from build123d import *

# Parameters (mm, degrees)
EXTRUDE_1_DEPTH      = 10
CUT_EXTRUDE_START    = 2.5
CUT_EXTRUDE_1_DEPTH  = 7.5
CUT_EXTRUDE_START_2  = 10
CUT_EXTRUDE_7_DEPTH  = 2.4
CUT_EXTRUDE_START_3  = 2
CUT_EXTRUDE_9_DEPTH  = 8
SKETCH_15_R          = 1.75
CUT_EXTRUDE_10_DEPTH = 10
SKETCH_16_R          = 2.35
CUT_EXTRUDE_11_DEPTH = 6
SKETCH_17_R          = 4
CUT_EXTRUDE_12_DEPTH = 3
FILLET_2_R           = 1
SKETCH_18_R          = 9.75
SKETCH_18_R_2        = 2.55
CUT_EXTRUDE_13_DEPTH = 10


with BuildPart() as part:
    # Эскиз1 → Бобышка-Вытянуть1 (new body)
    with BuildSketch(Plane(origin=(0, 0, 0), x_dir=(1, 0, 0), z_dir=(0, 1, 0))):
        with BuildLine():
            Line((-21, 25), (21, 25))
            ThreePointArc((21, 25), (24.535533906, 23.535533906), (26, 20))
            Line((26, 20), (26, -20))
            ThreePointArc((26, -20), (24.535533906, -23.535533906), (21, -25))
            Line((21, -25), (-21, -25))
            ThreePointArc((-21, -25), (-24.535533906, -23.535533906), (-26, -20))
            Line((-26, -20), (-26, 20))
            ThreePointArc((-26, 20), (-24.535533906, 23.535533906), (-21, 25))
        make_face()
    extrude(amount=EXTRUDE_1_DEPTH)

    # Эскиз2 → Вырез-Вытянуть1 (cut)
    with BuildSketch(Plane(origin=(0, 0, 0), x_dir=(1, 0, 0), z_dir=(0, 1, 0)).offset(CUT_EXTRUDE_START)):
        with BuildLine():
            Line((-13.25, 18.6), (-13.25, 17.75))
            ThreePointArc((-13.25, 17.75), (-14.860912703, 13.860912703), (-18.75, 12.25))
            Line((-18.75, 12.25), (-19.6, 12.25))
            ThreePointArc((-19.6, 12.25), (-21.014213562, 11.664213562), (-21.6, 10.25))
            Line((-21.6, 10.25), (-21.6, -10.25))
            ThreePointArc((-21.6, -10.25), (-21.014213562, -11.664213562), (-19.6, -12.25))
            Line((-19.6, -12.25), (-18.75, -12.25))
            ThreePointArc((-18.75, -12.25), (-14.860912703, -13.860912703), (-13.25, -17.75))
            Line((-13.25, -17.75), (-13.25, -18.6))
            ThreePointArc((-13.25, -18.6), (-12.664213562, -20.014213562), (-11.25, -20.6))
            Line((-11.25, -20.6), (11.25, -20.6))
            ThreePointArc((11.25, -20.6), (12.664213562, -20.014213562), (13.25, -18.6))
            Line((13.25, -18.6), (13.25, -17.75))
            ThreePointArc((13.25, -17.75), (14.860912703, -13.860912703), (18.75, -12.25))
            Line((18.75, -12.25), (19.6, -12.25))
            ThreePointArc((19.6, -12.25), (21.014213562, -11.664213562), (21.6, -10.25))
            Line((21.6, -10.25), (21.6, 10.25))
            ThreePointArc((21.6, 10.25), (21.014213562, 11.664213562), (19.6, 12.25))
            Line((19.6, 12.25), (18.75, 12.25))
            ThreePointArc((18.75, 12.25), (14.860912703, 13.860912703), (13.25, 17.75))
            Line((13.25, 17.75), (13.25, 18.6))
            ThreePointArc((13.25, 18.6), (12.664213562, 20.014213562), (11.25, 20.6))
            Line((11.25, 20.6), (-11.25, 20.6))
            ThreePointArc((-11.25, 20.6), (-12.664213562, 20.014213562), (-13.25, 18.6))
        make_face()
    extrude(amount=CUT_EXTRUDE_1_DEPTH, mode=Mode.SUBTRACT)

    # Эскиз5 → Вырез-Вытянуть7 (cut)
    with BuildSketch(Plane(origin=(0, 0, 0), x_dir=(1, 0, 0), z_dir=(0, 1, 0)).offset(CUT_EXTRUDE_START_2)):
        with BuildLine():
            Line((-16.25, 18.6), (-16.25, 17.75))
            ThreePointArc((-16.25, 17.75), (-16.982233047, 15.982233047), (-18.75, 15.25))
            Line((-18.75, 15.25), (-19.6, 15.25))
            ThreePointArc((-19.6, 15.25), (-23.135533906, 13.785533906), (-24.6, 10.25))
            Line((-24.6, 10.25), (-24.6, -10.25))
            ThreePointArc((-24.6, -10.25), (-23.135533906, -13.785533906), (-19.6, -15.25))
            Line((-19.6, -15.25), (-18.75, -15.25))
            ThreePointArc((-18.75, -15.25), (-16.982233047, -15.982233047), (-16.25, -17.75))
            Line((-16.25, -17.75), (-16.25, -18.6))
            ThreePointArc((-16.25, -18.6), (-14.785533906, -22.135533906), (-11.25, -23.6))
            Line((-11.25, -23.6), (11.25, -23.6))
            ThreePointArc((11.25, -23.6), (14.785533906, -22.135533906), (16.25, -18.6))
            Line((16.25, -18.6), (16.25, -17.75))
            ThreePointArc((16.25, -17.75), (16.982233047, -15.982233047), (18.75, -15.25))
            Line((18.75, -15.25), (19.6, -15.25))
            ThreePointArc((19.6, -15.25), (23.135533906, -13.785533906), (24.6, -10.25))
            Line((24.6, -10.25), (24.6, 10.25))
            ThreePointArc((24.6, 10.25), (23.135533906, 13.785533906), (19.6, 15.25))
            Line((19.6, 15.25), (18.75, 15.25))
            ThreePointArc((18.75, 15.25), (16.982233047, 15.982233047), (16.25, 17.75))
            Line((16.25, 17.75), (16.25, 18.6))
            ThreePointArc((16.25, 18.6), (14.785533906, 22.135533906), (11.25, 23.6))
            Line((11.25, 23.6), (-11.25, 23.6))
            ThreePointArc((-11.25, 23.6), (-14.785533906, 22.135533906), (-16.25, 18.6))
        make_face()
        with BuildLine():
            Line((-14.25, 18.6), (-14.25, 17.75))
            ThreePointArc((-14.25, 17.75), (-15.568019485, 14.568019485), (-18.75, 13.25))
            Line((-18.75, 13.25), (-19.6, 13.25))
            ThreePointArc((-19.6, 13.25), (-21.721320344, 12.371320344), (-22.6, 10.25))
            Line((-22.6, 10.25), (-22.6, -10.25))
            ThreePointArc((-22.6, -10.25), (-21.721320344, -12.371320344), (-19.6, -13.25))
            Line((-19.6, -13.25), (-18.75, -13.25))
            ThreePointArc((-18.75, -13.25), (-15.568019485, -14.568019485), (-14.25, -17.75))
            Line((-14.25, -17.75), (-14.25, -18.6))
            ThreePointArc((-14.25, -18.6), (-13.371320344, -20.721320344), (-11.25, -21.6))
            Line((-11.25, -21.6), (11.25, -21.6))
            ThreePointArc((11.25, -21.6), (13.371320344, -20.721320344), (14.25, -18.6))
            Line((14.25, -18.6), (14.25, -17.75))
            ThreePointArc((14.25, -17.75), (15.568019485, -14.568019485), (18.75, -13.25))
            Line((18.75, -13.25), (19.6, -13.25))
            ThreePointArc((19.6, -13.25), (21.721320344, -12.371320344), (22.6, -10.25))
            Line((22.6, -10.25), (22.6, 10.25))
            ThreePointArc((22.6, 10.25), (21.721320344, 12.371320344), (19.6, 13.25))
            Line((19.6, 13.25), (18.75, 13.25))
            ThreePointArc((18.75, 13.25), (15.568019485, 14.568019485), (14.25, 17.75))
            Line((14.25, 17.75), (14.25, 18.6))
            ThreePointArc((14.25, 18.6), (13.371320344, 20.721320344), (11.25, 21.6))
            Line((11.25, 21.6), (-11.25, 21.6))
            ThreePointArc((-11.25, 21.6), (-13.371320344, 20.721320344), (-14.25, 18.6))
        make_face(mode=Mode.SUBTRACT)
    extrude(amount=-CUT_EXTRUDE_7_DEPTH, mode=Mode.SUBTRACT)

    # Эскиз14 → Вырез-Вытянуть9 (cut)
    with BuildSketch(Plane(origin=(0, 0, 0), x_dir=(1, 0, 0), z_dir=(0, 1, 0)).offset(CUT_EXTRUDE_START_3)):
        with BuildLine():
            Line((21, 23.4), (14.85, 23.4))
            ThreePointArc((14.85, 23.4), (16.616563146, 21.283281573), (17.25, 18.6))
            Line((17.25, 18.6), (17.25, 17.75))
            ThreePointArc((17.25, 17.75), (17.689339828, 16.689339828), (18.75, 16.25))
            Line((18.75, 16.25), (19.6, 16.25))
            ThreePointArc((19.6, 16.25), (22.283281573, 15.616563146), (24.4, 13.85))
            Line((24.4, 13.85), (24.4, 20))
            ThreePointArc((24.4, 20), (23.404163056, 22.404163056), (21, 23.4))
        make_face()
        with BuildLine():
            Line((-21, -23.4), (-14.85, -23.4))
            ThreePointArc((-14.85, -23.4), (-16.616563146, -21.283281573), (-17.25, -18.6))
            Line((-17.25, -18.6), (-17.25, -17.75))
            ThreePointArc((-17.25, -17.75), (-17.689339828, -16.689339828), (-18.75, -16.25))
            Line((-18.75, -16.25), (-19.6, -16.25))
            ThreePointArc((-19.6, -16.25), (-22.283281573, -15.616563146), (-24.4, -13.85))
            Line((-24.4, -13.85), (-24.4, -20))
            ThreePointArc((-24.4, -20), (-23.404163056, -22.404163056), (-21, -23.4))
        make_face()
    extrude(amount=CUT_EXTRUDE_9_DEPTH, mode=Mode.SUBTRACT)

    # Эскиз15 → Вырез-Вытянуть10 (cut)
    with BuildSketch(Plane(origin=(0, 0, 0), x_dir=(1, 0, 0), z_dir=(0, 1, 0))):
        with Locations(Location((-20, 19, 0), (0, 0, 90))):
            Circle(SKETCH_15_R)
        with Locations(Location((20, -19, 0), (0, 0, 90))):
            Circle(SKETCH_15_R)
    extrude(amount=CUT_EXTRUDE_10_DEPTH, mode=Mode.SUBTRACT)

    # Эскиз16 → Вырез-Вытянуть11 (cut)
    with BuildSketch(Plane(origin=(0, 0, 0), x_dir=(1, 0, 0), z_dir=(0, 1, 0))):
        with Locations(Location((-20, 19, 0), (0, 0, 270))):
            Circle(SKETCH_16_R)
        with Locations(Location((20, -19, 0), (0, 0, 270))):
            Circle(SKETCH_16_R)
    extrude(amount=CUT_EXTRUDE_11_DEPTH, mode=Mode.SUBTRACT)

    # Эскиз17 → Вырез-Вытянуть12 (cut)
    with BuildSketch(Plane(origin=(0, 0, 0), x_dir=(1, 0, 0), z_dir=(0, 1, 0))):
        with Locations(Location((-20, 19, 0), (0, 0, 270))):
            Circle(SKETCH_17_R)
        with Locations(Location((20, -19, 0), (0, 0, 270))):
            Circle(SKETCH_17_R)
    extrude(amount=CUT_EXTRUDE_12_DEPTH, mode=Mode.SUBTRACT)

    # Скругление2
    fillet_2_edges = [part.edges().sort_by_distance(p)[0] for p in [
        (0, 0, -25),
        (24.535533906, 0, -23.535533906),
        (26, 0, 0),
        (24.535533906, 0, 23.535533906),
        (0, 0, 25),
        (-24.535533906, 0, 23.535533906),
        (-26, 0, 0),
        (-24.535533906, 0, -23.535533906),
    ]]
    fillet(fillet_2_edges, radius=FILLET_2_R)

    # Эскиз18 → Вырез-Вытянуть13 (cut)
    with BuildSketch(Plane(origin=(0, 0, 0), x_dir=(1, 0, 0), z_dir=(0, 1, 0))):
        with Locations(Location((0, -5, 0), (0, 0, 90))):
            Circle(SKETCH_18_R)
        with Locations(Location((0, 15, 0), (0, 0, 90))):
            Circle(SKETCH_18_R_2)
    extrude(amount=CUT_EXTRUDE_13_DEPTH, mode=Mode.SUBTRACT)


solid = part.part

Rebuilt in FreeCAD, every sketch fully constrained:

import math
import FreeCAD as App
import Part
import Sketcher
Q = App.Units.Quantity


def edges_at(feature, points):
    """Names of the edges that pass closest to the given points."""
    edges = feature.Shape.Edges
    near = lambda p: min(range(len(edges)), key=lambda i: edges[i].distToShape(Part.Vertex(*p))[0])
    return sorted({f"Edge{near(p) + 1}" for p in points})

doc = App.newDocument("Part")
body = doc.addObject("PartDesign::Body", "Body")

# Sketch on XZ plane
sketch1 = doc.addObject("Sketcher::SketchObject", "Sketch")
body.addObject(sketch1)
sketch1.AttachmentSupport = (doc.XZ_Plane, [""])
sketch1.MapMode = "FlatFace"
sketch1.addGeometry([
    Part.LineSegment(App.Vector(21, -25, 0), App.Vector(-21, -25, 0)),  # 0
    Part.ArcOfCircle(Part.Circle(App.Vector(-21, -20, 0), App.Vector(0, 0, 1), 5), math.radians(180), math.radians(270)),  # 1
    Part.LineSegment(App.Vector(-26, -20, 0), App.Vector(-26, 20, 0)),  # 2
    Part.ArcOfCircle(Part.Circle(App.Vector(-21, 20, 0), App.Vector(0, 0, 1), 5), math.radians(90), math.radians(180)),  # 3
    Part.LineSegment(App.Vector(-21, 25, 0), App.Vector(21, 25, 0)),  # 4
    Part.ArcOfCircle(Part.Circle(App.Vector(21, 20, 0), App.Vector(0, 0, 1), 5), math.radians(0), math.radians(90)),  # 5
    Part.LineSegment(App.Vector(26, 20, 0), App.Vector(26, -20, 0)),  # 6
    Part.ArcOfCircle(Part.Circle(App.Vector(21, -20, 0), App.Vector(0, 0, 1), 5), math.radians(-90), math.radians(0)),  # 7
], False)
sketch1.addConstraint([
    Sketcher.Constraint("Tangent", 0, 2, 1, 2),
    Sketcher.Constraint("Tangent", 1, 1, 2, 1),
    Sketcher.Constraint("Tangent", 2, 2, 3, 2),
    Sketcher.Constraint("Tangent", 3, 1, 4, 1),
    Sketcher.Constraint("Tangent", 4, 2, 5, 2),
    Sketcher.Constraint("Tangent", 5, 1, 6, 1),
    Sketcher.Constraint("Tangent", 6, 2, 7, 2),
    Sketcher.Constraint("Tangent", 7, 1, 0, 1),
    Sketcher.Constraint("Horizontal", 0),
    Sketcher.Constraint("Vertical", 2),
    Sketcher.Constraint("Horizontal", 4),
    Sketcher.Constraint("Vertical", 6),
    Sketcher.Constraint("Equal", 1, 3),
    Sketcher.Constraint("Equal", 3, 5),
    Sketcher.Constraint("Equal", 5, 7),
    Sketcher.Constraint("Symmetric", 1, 3, 5, 3, -1, 1),
    Sketcher.Constraint("Radius", 1, Q("5 mm")),
    Sketcher.Constraint("DistanceX", 0, 2, 0, 1, Q("42 mm")),
    Sketcher.Constraint("DistanceY", 2, 1, 2, 2, Q("40 mm")),
])
pad1 = doc.addObject("PartDesign::Pad", "Pad")
body.addObject(pad1)
pad1.Profile = sketch1
pad1.Length = 10
pad1.Reversed = True

# Sketch on XZ plane
sketch2 = doc.addObject("Sketcher::SketchObject", "Sketch001")
body.addObject(sketch2)
sketch2.AttachmentSupport = (doc.XZ_Plane, [""])
sketch2.MapMode = "FlatFace"
sketch2.AttachmentOffset = App.Placement(App.Vector(0, 0, -2.5), App.Rotation())
sketch2.addGeometry([
    Part.LineSegment(App.Vector(-13.2, -18.6, 0), App.Vector(-13.2, -17.8, 0)),  # 0
    Part.ArcOfCircle(Part.Circle(App.Vector(-18.7, -17.7, 0), App.Vector(0, 0, 1), 5.5), math.radians(0), math.radians(90)),  # 1
    Part.LineSegment(App.Vector(-18.8, -12.2, 0), App.Vector(-19.6, -12.2, 0)),  # 2
    Part.ArcOfCircle(Part.Circle(App.Vector(-19.6, -10.2, 0), App.Vector(0, 0, 1), 2), math.radians(-180), math.radians(-90)),  # 3
    Part.LineSegment(App.Vector(-21.6, -10.2, 0), App.Vector(-21.6, 10.2, 0)),  # 4
    Part.ArcOfCircle(Part.Circle(App.Vector(-19.6, 10.2, 0), App.Vector(0, 0, 1), 2), math.radians(90), math.radians(180)),  # 5
    Part.LineSegment(App.Vector(-19.6, 12.2, 0), App.Vector(-18.8, 12.2, 0)),  # 6
    Part.ArcOfCircle(Part.Circle(App.Vector(-18.7, 17.7, 0), App.Vector(0, 0, 1), 5.5), math.radians(-90), math.radians(0)),  # 7
    Part.LineSegment(App.Vector(-13.2, 17.8, 0), App.Vector(-13.2, 18.6, 0)),  # 8
    Part.ArcOfCircle(Part.Circle(App.Vector(-11.2, 18.6, 0), App.Vector(0, 0, 1), 2), math.radians(90), math.radians(180)),  # 9
    Part.LineSegment(App.Vector(-11.2, 20.6, 0), App.Vector(11.2, 20.6, 0)),  # 10
    Part.ArcOfCircle(Part.Circle(App.Vector(11.2, 18.6, 0), App.Vector(0, 0, 1), 2), math.radians(0), math.radians(90)),  # 11
    Part.LineSegment(App.Vector(13.2, 18.6, 0), App.Vector(13.2, 17.8, 0)),  # 12
    Part.ArcOfCircle(Part.Circle(App.Vector(18.7, 17.7, 0), App.Vector(0, 0, 1), 5.5), math.radians(180), math.radians(270)),  # 13
    Part.LineSegment(App.Vector(18.8, 12.2, 0), App.Vector(19.6, 12.2, 0)),  # 14
    Part.ArcOfCircle(Part.Circle(App.Vector(19.6, 10.2, 0), App.Vector(0, 0, 1), 2), math.radians(0), math.radians(90)),  # 15
    Part.LineSegment(App.Vector(21.6, 10.2, 0), App.Vector(21.6, -10.2, 0)),  # 16
    Part.ArcOfCircle(Part.Circle(App.Vector(19.6, -10.2, 0), App.Vector(0, 0, 1), 2), math.radians(-90), math.radians(0)),  # 17
    Part.LineSegment(App.Vector(19.6, -12.2, 0), App.Vector(18.8, -12.2, 0)),  # 18
    Part.ArcOfCircle(Part.Circle(App.Vector(18.7, -17.7, 0), App.Vector(0, 0, 1), 5.5), math.radians(90), math.radians(180)),  # 19
    Part.LineSegment(App.Vector(13.2, -17.8, 0), App.Vector(13.2, -18.6, 0)),  # 20
    Part.ArcOfCircle(Part.Circle(App.Vector(11.2, -18.6, 0), App.Vector(0, 0, 1), 2), math.radians(-90), math.radians(0)),  # 21
    Part.LineSegment(App.Vector(11.2, -20.6, 0), App.Vector(-11.2, -20.6, 0)),  # 22
    Part.ArcOfCircle(Part.Circle(App.Vector(-11.2, -18.6, 0), App.Vector(0, 0, 1), 2), math.radians(-180), math.radians(-90)),  # 23
], False)
sketch2.addConstraint([
    Sketcher.Constraint("Tangent", 0, 2, 1, 1),
    Sketcher.Constraint("Tangent", 1, 2, 2, 1),
    Sketcher.Constraint("Tangent", 2, 2, 3, 2),
    Sketcher.Constraint("Tangent", 3, 1, 4, 1),
    Sketcher.Constraint("Tangent", 4, 2, 5, 2),
    Sketcher.Constraint("Tangent", 5, 1, 6, 1),
    Sketcher.Constraint("Tangent", 6, 2, 7, 1),
    Sketcher.Constraint("Tangent", 7, 2, 8, 1),
    Sketcher.Constraint("Tangent", 8, 2, 9, 2),
    Sketcher.Constraint("Tangent", 9, 1, 10, 1),
    Sketcher.Constraint("Tangent", 10, 2, 11, 2),
    Sketcher.Constraint("Tangent", 11, 1, 12, 1),
    Sketcher.Constraint("Tangent", 12, 2, 13, 1),
    Sketcher.Constraint("Tangent", 13, 2, 14, 1),
    Sketcher.Constraint("Tangent", 14, 2, 15, 2),
    Sketcher.Constraint("Tangent", 15, 1, 16, 1),
    Sketcher.Constraint("Tangent", 16, 2, 17, 2),
    Sketcher.Constraint("Tangent", 17, 1, 18, 1),
    Sketcher.Constraint("Tangent", 18, 2, 19, 1),
    Sketcher.Constraint("Tangent", 19, 2, 20, 1),
    Sketcher.Constraint("Tangent", 20, 2, 21, 2),
    Sketcher.Constraint("Tangent", 21, 1, 22, 1),
    Sketcher.Constraint("Tangent", 22, 2, 23, 2),
    Sketcher.Constraint("Tangent", 23, 1, 0, 1),
    Sketcher.Constraint("Vertical", 0),
    Sketcher.Constraint("Horizontal", 2),
    Sketcher.Constraint("Vertical", 4),
    Sketcher.Constraint("Horizontal", 6),
    Sketcher.Constraint("Vertical", 8),
    Sketcher.Constraint("Horizontal", 10),
    Sketcher.Constraint("Vertical", 12),
    Sketcher.Constraint("Horizontal", 14),
    Sketcher.Constraint("Vertical", 16),
    Sketcher.Constraint("Horizontal", 18),
    Sketcher.Constraint("Vertical", 20),
    Sketcher.Constraint("Horizontal", 22),
    Sketcher.Constraint("Equal", 3, 5),
    Sketcher.Constraint("Equal", 1, 7),
    Sketcher.Constraint("Equal", 5, 9),
    Sketcher.Constraint("Equal", 9, 11),
    Sketcher.Constraint("Equal", 7, 13),
    Sketcher.Constraint("Equal", 11, 15),
    Sketcher.Constraint("Equal", 15, 17),
    Sketcher.Constraint("Equal", 13, 19),
    Sketcher.Constraint("Equal", 17, 21),
    Sketcher.Constraint("Equal", 21, 23),
    Sketcher.Constraint("Symmetric", 1, 3, 13, 3, -1, 1),
    Sketcher.Constraint("Symmetric", 5, 3, 17, 3, -1, 1),
    Sketcher.Constraint("Symmetric", 9, 3, 21, 3, -1, 1),
    Sketcher.Constraint("Symmetric", 7, 3, 13, 3, -2),
    Sketcher.Constraint("Equal", 18, 0),
    Sketcher.Constraint("Radius", 3, Q("2 mm")),
    Sketcher.Constraint("Radius", 1, Q("5.5 mm")),
    Sketcher.Constraint("DistanceX", 10, 1, 10, 2, Q("22.5 mm")),
    Sketcher.Constraint("DistanceY", 4, 1, 4, 2, Q("20.5 mm")),
    Sketcher.Constraint("DistanceX", 2, 2, 2, 1, Q("0.85 mm")),
])
pocket1 = doc.addObject("PartDesign::Pocket", "Pocket")
body.addObject(pocket1)
pocket1.Profile = sketch2
pocket1.Length = 7.5

# Sketch on XZ plane
sketch3 = doc.addObject("Sketcher::SketchObject", "Sketch002")
body.addObject(sketch3)
sketch3.AttachmentSupport = (doc.XZ_Plane, [""])
sketch3.MapMode = "FlatFace"
sketch3.AttachmentOffset = App.Placement(App.Vector(0, 0, -10), App.Rotation())
sketch3.addGeometry([
    Part.LineSegment(App.Vector(-16.2, -18.6, 0), App.Vector(-16.2, -17.8, 0)),  # 0
    Part.ArcOfCircle(Part.Circle(App.Vector(-18.8, -17.8, 0), App.Vector(0, 0, 1), 2.5), math.radians(0), math.radians(90)),  # 1
    Part.LineSegment(App.Vector(-18.8, -15.2, 0), App.Vector(-19.6, -15.2, 0)),  # 2
    Part.ArcOfCircle(Part.Circle(App.Vector(-19.6, -10.2, 0), App.Vector(0, 0, 1), 5), math.radians(180), math.radians(270)),  # 3
    Part.LineSegment(App.Vector(-24.6, -10.2, 0), App.Vector(-24.6, 10.2, 0)),  # 4
    Part.ArcOfCircle(Part.Circle(App.Vector(-19.6, 10.2, 0), App.Vector(0, 0, 1), 5), math.radians(90), math.radians(180)),  # 5
    Part.LineSegment(App.Vector(-19.6, 15.2, 0), App.Vector(-18.8, 15.2, 0)),  # 6
    Part.ArcOfCircle(Part.Circle(App.Vector(-18.8, 17.8, 0), App.Vector(0, 0, 1), 2.5), math.radians(-90), math.radians(0)),  # 7
    Part.LineSegment(App.Vector(-16.2, 17.8, 0), App.Vector(-16.2, 18.6, 0)),  # 8
    Part.ArcOfCircle(Part.Circle(App.Vector(-11.2, 18.6, 0), App.Vector(0, 0, 1), 5), math.radians(90), math.radians(180)),  # 9
    Part.LineSegment(App.Vector(-11.2, 23.6, 0), App.Vector(11.2, 23.6, 0)),  # 10
    Part.ArcOfCircle(Part.Circle(App.Vector(11.2, 18.6, 0), App.Vector(0, 0, 1), 5), math.radians(0), math.radians(90)),  # 11
    Part.LineSegment(App.Vector(16.2, 18.6, 0), App.Vector(16.2, 17.8, 0)),  # 12
    Part.ArcOfCircle(Part.Circle(App.Vector(18.8, 17.8, 0), App.Vector(0, 0, 1), 2.5), math.radians(180), math.radians(270)),  # 13
    Part.LineSegment(App.Vector(18.8, 15.2, 0), App.Vector(19.6, 15.2, 0)),  # 14
    Part.ArcOfCircle(Part.Circle(App.Vector(19.6, 10.2, 0), App.Vector(0, 0, 1), 5), math.radians(0), math.radians(90)),  # 15
    Part.LineSegment(App.Vector(24.6, 10.2, 0), App.Vector(24.6, -10.2, 0)),  # 16
    Part.ArcOfCircle(Part.Circle(App.Vector(19.6, -10.2, 0), App.Vector(0, 0, 1), 5), math.radians(-90), math.radians(0)),  # 17
    Part.LineSegment(App.Vector(19.6, -15.2, 0), App.Vector(18.8, -15.2, 0)),  # 18
    Part.ArcOfCircle(Part.Circle(App.Vector(18.8, -17.8, 0), App.Vector(0, 0, 1), 2.5), math.radians(90), math.radians(180)),  # 19
    Part.LineSegment(App.Vector(16.2, -17.8, 0), App.Vector(16.2, -18.6, 0)),  # 20
    Part.ArcOfCircle(Part.Circle(App.Vector(11.2, -18.6, 0), App.Vector(0, 0, 1), 5), math.radians(-90), math.radians(0)),  # 21
    Part.LineSegment(App.Vector(11.2, -23.6, 0), App.Vector(-11.2, -23.6, 0)),  # 22
    Part.ArcOfCircle(Part.Circle(App.Vector(-11.2, -18.6, 0), App.Vector(0, 0, 1), 5), math.radians(180), math.radians(270)),  # 23
    Part.LineSegment(App.Vector(-14.2, -17.8, 0), App.Vector(-14.2, -18.6, 0)),  # 24
    Part.ArcOfCircle(Part.Circle(App.Vector(-11.3, -18.6, 0), App.Vector(0, 0, 1), 3), math.radians(180), math.radians(270)),  # 25
    Part.LineSegment(App.Vector(-11.2, -21.6, 0), App.Vector(11.2, -21.6, 0)),  # 26
    Part.ArcOfCircle(Part.Circle(App.Vector(11.3, -18.6, 0), App.Vector(0, 0, 1), 3), math.radians(-90), math.radians(0)),  # 27
    Part.LineSegment(App.Vector(14.2, -18.6, 0), App.Vector(14.2, -17.8, 0)),  # 28
    Part.ArcOfCircle(Part.Circle(App.Vector(18.8, -17.8, 0), App.Vector(0, 0, 1), 4.5), math.radians(90), math.radians(180)),  # 29
    Part.LineSegment(App.Vector(18.8, -13.2, 0), App.Vector(19.6, -13.2, 0)),  # 30
    Part.ArcOfCircle(Part.Circle(App.Vector(19.6, -10.3, 0), App.Vector(0, 0, 1), 3), math.radians(-90), math.radians(0)),  # 31
    Part.LineSegment(App.Vector(22.6, -10.2, 0), App.Vector(22.6, 10.2, 0)),  # 32
    Part.ArcOfCircle(Part.Circle(App.Vector(19.6, 10.3, 0), App.Vector(0, 0, 1), 3), math.radians(0), math.radians(90)),  # 33
    Part.LineSegment(App.Vector(19.6, 13.2, 0), App.Vector(18.8, 13.2, 0)),  # 34
    Part.ArcOfCircle(Part.Circle(App.Vector(18.8, 17.8, 0), App.Vector(0, 0, 1), 4.5), math.radians(-180), math.radians(-90)),  # 35
    Part.LineSegment(App.Vector(14.2, 17.8, 0), App.Vector(14.2, 18.6, 0)),  # 36
    Part.ArcOfCircle(Part.Circle(App.Vector(11.3, 18.6, 0), App.Vector(0, 0, 1), 3), math.radians(0), math.radians(90)),  # 37
    Part.LineSegment(App.Vector(11.2, 21.6, 0), App.Vector(-11.2, 21.6, 0)),  # 38
    Part.ArcOfCircle(Part.Circle(App.Vector(-11.3, 18.6, 0), App.Vector(0, 0, 1), 3), math.radians(90), math.radians(180)),  # 39
    Part.LineSegment(App.Vector(-14.2, 18.6, 0), App.Vector(-14.2, 17.8, 0)),  # 40
    Part.ArcOfCircle(Part.Circle(App.Vector(-18.8, 17.8, 0), App.Vector(0, 0, 1), 4.5), math.radians(-90), math.radians(0)),  # 41
    Part.LineSegment(App.Vector(-18.8, 13.2, 0), App.Vector(-19.6, 13.2, 0)),  # 42
    Part.ArcOfCircle(Part.Circle(App.Vector(-19.6, 10.3, 0), App.Vector(0, 0, 1), 3), math.radians(90), math.radians(180)),  # 43
    Part.LineSegment(App.Vector(-22.6, 10.2, 0), App.Vector(-22.6, -10.2, 0)),  # 44
    Part.ArcOfCircle(Part.Circle(App.Vector(-19.6, -10.3, 0), App.Vector(0, 0, 1), 3), math.radians(180), math.radians(270)),  # 45
    Part.LineSegment(App.Vector(-19.6, -13.2, 0), App.Vector(-18.8, -13.2, 0)),  # 46
    Part.ArcOfCircle(Part.Circle(App.Vector(-18.8, -17.8, 0), App.Vector(0, 0, 1), 4.5), math.radians(0), math.radians(90)),  # 47
], False)
sketch3.addConstraint([
    Sketcher.Constraint("Tangent", 0, 2, 1, 1),
    Sketcher.Constraint("Tangent", 1, 2, 2, 1),
    Sketcher.Constraint("Tangent", 2, 2, 3, 2),
    Sketcher.Constraint("Tangent", 3, 1, 4, 1),
    Sketcher.Constraint("Tangent", 4, 2, 5, 2),
    Sketcher.Constraint("Tangent", 5, 1, 6, 1),
    Sketcher.Constraint("Tangent", 6, 2, 7, 1),
    Sketcher.Constraint("Tangent", 7, 2, 8, 1),
    Sketcher.Constraint("Tangent", 8, 2, 9, 2),
    Sketcher.Constraint("Tangent", 9, 1, 10, 1),
    Sketcher.Constraint("Tangent", 10, 2, 11, 2),
    Sketcher.Constraint("Tangent", 11, 1, 12, 1),
    Sketcher.Constraint("Tangent", 12, 2, 13, 1),
    Sketcher.Constraint("Tangent", 13, 2, 14, 1),
    Sketcher.Constraint("Tangent", 14, 2, 15, 2),
    Sketcher.Constraint("Tangent", 15, 1, 16, 1),
    Sketcher.Constraint("Tangent", 16, 2, 17, 2),
    Sketcher.Constraint("Tangent", 17, 1, 18, 1),
    Sketcher.Constraint("Tangent", 18, 2, 19, 1),
    Sketcher.Constraint("Tangent", 19, 2, 20, 1),
    Sketcher.Constraint("Tangent", 20, 2, 21, 2),
    Sketcher.Constraint("Tangent", 21, 1, 22, 1),
    Sketcher.Constraint("Tangent", 22, 2, 23, 2),
    Sketcher.Constraint("Tangent", 23, 1, 0, 1),
    Sketcher.Constraint("Tangent", 24, 2, 25, 1),
    Sketcher.Constraint("Tangent", 25, 2, 26, 1),
    Sketcher.Constraint("Tangent", 26, 2, 27, 1),
    Sketcher.Constraint("Tangent", 27, 2, 28, 1),
    Sketcher.Constraint("Tangent", 28, 2, 29, 2),
    Sketcher.Constraint("Tangent", 29, 1, 30, 1),
    Sketcher.Constraint("Tangent", 30, 2, 31, 1),
    Sketcher.Constraint("Tangent", 31, 2, 32, 1),
    Sketcher.Constraint("Tangent", 32, 2, 33, 1),
    Sketcher.Constraint("Tangent", 33, 2, 34, 1),
    Sketcher.Constraint("Tangent", 34, 2, 35, 2),
    Sketcher.Constraint("Tangent", 35, 1, 36, 1),
    Sketcher.Constraint("Tangent", 36, 2, 37, 1),
    Sketcher.Constraint("Tangent", 37, 2, 38, 1),
    Sketcher.Constraint("Tangent", 38, 2, 39, 1),
    Sketcher.Constraint("Tangent", 39, 2, 40, 1),
    Sketcher.Constraint("Tangent", 40, 2, 41, 2),
    Sketcher.Constraint("Tangent", 41, 1, 42, 1),
    Sketcher.Constraint("Tangent", 42, 2, 43, 1),
    Sketcher.Constraint("Tangent", 43, 2, 44, 1),
    Sketcher.Constraint("Tangent", 44, 2, 45, 1),
    Sketcher.Constraint("Tangent", 45, 2, 46, 1),
    Sketcher.Constraint("Tangent", 46, 2, 47, 2),
    Sketcher.Constraint("Tangent", 47, 1, 24, 1),
    Sketcher.Constraint("Vertical", 0),
    Sketcher.Constraint("Horizontal", 2),
    Sketcher.Constraint("Vertical", 4),
    Sketcher.Constraint("Horizontal", 6),
    Sketcher.Constraint("Vertical", 8),
    Sketcher.Constraint("Horizontal", 10),
    Sketcher.Constraint("Vertical", 12),
    Sketcher.Constraint("Horizontal", 14),
    Sketcher.Constraint("Vertical", 16),
    Sketcher.Constraint("Horizontal", 18),
    Sketcher.Constraint("Vertical", 20),
    Sketcher.Constraint("Horizontal", 22),
    Sketcher.Constraint("Vertical", 24),
    Sketcher.Constraint("Horizontal", 26),
    Sketcher.Constraint("Vertical", 28),
    Sketcher.Constraint("Horizontal", 30),
    Sketcher.Constraint("Vertical", 32),
    Sketcher.Constraint("Horizontal", 34),
    Sketcher.Constraint("Vertical", 36),
    Sketcher.Constraint("Horizontal", 38),
    Sketcher.Constraint("Vertical", 40),
    Sketcher.Constraint("Horizontal", 42),
    Sketcher.Constraint("Vertical", 44),
    Sketcher.Constraint("Horizontal", 46),
    Sketcher.Constraint("Coincident", 25, 3, 23, 3),
    Sketcher.Constraint("Coincident", 27, 3, 21, 3),
    Sketcher.Constraint("Coincident", 29, 3, 19, 3),
    Sketcher.Constraint("Coincident", 31, 3, 17, 3),
    Sketcher.Constraint("Coincident", 33, 3, 15, 3),
    Sketcher.Constraint("Coincident", 35, 3, 13, 3),
    Sketcher.Constraint("Coincident", 37, 3, 11, 3),
    Sketcher.Constraint("Coincident", 39, 3, 9, 3),
    Sketcher.Constraint("Coincident", 41, 3, 7, 3),
    Sketcher.Constraint("Coincident", 43, 3, 5, 3),
    Sketcher.Constraint("Coincident", 45, 3, 3, 3),
    Sketcher.Constraint("Equal", 3, 5),
    Sketcher.Constraint("Equal", 1, 7),
    Sketcher.Constraint("Equal", 5, 9),
    Sketcher.Constraint("Equal", 9, 11),
    Sketcher.Constraint("Equal", 7, 13),
    Sketcher.Constraint("Equal", 11, 15),
    Sketcher.Constraint("Equal", 15, 17),
    Sketcher.Constraint("Equal", 13, 19),
    Sketcher.Constraint("Equal", 17, 21),
    Sketcher.Constraint("Equal", 21, 23),
    Sketcher.Constraint("Equal", 41, 47),
    Sketcher.Constraint("Symmetric", 1, 3, 13, 3, -1, 1),
    Sketcher.Constraint("Symmetric", 5, 3, 17, 3, -1, 1),
    Sketcher.Constraint("Symmetric", 9, 3, 21, 3, -1, 1),
    Sketcher.Constraint("Symmetric", 7, 3, 13, 3, -2),
    Sketcher.Constraint("Equal", 46, 0),
    Sketcher.Constraint("Radius", 3, Q("5 mm")),
    Sketcher.Constraint("Radius", 25, Q("3 mm")),
    Sketcher.Constraint("Radius", 1, Q("2.5 mm")),
    Sketcher.Constraint("DistanceX", 10, 1, 10, 2, Q("22.5 mm")),
    Sketcher.Constraint("DistanceY", 4, 1, 4, 2, Q("20.5 mm")),
    Sketcher.Constraint("DistanceX", 2, 2, 2, 1, Q("0.85 mm")),
])
pocket2 = doc.addObject("PartDesign::Pocket", "Pocket001")
body.addObject(pocket2)
pocket2.Profile = sketch3
pocket2.Length = 2.4
pocket2.Reversed = True

# Sketch on XZ plane
sketch4 = doc.addObject("Sketcher::SketchObject", "Sketch003")
body.addObject(sketch4)
sketch4.AttachmentSupport = (doc.XZ_Plane, [""])
sketch4.MapMode = "FlatFace"
sketch4.AttachmentOffset = App.Placement(App.Vector(0, 0, -2), App.Rotation())
sketch4.addGeometry([
    Part.LineSegment(App.Vector(21, -23.4, 0), App.Vector(14.8, -23.4, 0)),  # 0
    Part.ArcOfCircle(Part.Circle(App.Vector(11.2, -18.6, 0), App.Vector(0, 0, 1), 6), math.radians(-53), math.radians(0)),  # 1
    Part.LineSegment(App.Vector(17.2, -18.6, 0), App.Vector(17.2, -17.8, 0)),  # 2
    Part.ArcOfCircle(Part.Circle(App.Vector(18.7, -17.7, 0), App.Vector(0, 0, 1), 1.5), math.radians(90), math.radians(180)),  # 3
    Part.LineSegment(App.Vector(18.8, -16.2, 0), App.Vector(19.6, -16.2, 0)),  # 4
    Part.ArcOfCircle(Part.Circle(App.Vector(19.6, -10.2, 0), App.Vector(0, 0, 1), 6), math.radians(-90), math.radians(-37)),  # 5
    Part.LineSegment(App.Vector(24.4, -13.8, 0), App.Vector(24.4, -20, 0)),  # 6
    Part.ArcOfCircle(Part.Circle(App.Vector(21, -20, 0), App.Vector(0, 0, 1), 3.4), math.radians(-90), math.radians(0)),  # 7
    Part.LineSegment(App.Vector(-21, 23.4, 0), App.Vector(-14.8, 23.4, 0)),  # 8
    Part.ArcOfCircle(Part.Circle(App.Vector(-11.2, 18.6, 0), App.Vector(0, 0, 1), 6), math.radians(127), math.radians(180)),  # 9
    Part.LineSegment(App.Vector(-17.2, 18.6, 0), App.Vector(-17.2, 17.8, 0)),  # 10
    Part.ArcOfCircle(Part.Circle(App.Vector(-18.7, 17.7, 0), App.Vector(0, 0, 1), 1.5), math.radians(-90), math.radians(0)),  # 11
    Part.LineSegment(App.Vector(-18.8, 16.2, 0), App.Vector(-19.6, 16.2, 0)),  # 12
    Part.ArcOfCircle(Part.Circle(App.Vector(-19.6, 10.2, 0), App.Vector(0, 0, 1), 6), math.radians(90), math.radians(143)),  # 13
    Part.LineSegment(App.Vector(-24.4, 13.8, 0), App.Vector(-24.4, 20, 0)),  # 14
    Part.ArcOfCircle(Part.Circle(App.Vector(-21, 20, 0), App.Vector(0, 0, 1), 3.4), math.radians(90), math.radians(180)),  # 15
], False)
sketch4.addConstraint([
    Sketcher.Constraint("Coincident", 0, 2, 1, 1),
    Sketcher.Constraint("Tangent", 1, 2, 2, 1),
    Sketcher.Constraint("Tangent", 2, 2, 3, 2),
    Sketcher.Constraint("Tangent", 3, 1, 4, 1),
    Sketcher.Constraint("Tangent", 4, 2, 5, 1),
    Sketcher.Constraint("Coincident", 5, 2, 6, 1),
    Sketcher.Constraint("Tangent", 6, 2, 7, 2),
    Sketcher.Constraint("Tangent", 7, 1, 0, 1),
    Sketcher.Constraint("Coincident", 8, 2, 9, 1),
    Sketcher.Constraint("Tangent", 9, 2, 10, 1),
    Sketcher.Constraint("Tangent", 10, 2, 11, 2),
    Sketcher.Constraint("Tangent", 11, 1, 12, 1),
    Sketcher.Constraint("Tangent", 12, 2, 13, 1),
    Sketcher.Constraint("Coincident", 13, 2, 14, 1),
    Sketcher.Constraint("Tangent", 14, 2, 15, 2),
    Sketcher.Constraint("Tangent", 15, 1, 8, 1),
    Sketcher.Constraint("Horizontal", 0),
    Sketcher.Constraint("Vertical", 2),
    Sketcher.Constraint("Horizontal", 4),
    Sketcher.Constraint("Vertical", 6),
    Sketcher.Constraint("Horizontal", 8),
    Sketcher.Constraint("Vertical", 10),
    Sketcher.Constraint("Horizontal", 12),
    Sketcher.Constraint("Vertical", 14),
    Sketcher.Constraint("Equal", 1, 5),
    Sketcher.Constraint("Equal", 5, 9),
    Sketcher.Constraint("Equal", 3, 11),
    Sketcher.Constraint("Equal", 9, 13),
    Sketcher.Constraint("Equal", 7, 15),
    Sketcher.Constraint("Symmetric", 1, 3, 9, 3, -1, 1),
    Sketcher.Constraint("Symmetric", 5, 3, 13, 3, -1, 1),
    Sketcher.Constraint("Symmetric", 7, 3, 15, 3, -1, 1),
    Sketcher.Constraint("Equal", 12, 2),
    Sketcher.Constraint("Equal", 8, 6),
    Sketcher.Constraint("Radius", 1, Q("6 mm")),
    Sketcher.Constraint("Radius", 3, Q("1.5 mm")),
    Sketcher.Constraint("Radius", 7, Q("3.4 mm")),
    Sketcher.Constraint("DistanceX", -1, 1, 7, 3, Q("21 mm")),
    Sketcher.Constraint("DistanceY", 7, 3, -1, 1, Q("20 mm")),
    Sketcher.Constraint("DistanceX", 9, 3, 3, 3, Q("30 mm")),
    Sketcher.Constraint("DistanceX", 0, 2, 0, 1, Q("6.15 mm")),
])
pocket3 = doc.addObject("PartDesign::Pocket", "Pocket002")
body.addObject(pocket3)
pocket3.Profile = sketch4
pocket3.Length = 8

# Sketch on XZ plane
sketch5 = doc.addObject("Sketcher::SketchObject", "Sketch004")
body.addObject(sketch5)
sketch5.AttachmentSupport = (doc.XZ_Plane, [""])
sketch5.MapMode = "FlatFace"
sketch5.addGeometry([
    Part.Circle(App.Vector(-20, -19, 0), App.Vector(0, 0, 1), 1.8),
    Part.Circle(App.Vector(20, 19, 0), App.Vector(0, 0, 1), 1.8),
], False)
sketch5.addConstraint([
    Sketcher.Constraint("Equal", 0, 1),
    Sketcher.Constraint("Symmetric", 0, 3, 1, 3, -1, 1),
    Sketcher.Constraint("Diameter", 0, Q("3.5 mm")),
    Sketcher.Constraint("DistanceX", 0, 3, -1, 1, Q("20 mm")),
    Sketcher.Constraint("DistanceY", 0, 3, -1, 1, Q("19 mm")),
])
pocket4 = doc.addObject("PartDesign::Pocket", "Pocket003")
body.addObject(pocket4)
pocket4.Profile = sketch5
pocket4.Length = 10

# Sketch on XZ plane
sketch6 = doc.addObject("Sketcher::SketchObject", "Sketch005")
body.addObject(sketch6)
sketch6.AttachmentSupport = (doc.XZ_Plane, [""])
sketch6.MapMode = "FlatFace"
sketch6.addGeometry([
    Part.Circle(App.Vector(-20, -19, 0), App.Vector(0, 0, 1), 2.4),
    Part.Circle(App.Vector(20, 19, 0), App.Vector(0, 0, 1), 2.4),
], False)
sketch6.addConstraint([
    Sketcher.Constraint("Equal", 0, 1),
    Sketcher.Constraint("Symmetric", 0, 3, 1, 3, -1, 1),
    Sketcher.Constraint("Diameter", 0, Q("4.7 mm")),
    Sketcher.Constraint("DistanceX", 0, 3, -1, 1, Q("20 mm")),
    Sketcher.Constraint("DistanceY", 0, 3, -1, 1, Q("19 mm")),
])
pocket5 = doc.addObject("PartDesign::Pocket", "Pocket004")
body.addObject(pocket5)
pocket5.Profile = sketch6
pocket5.Length = 6

# Sketch on XZ plane
sketch7 = doc.addObject("Sketcher::SketchObject", "Sketch006")
body.addObject(sketch7)
sketch7.AttachmentSupport = (doc.XZ_Plane, [""])
sketch7.MapMode = "FlatFace"
sketch7.addGeometry([
    Part.Circle(App.Vector(-20, -19, 0), App.Vector(0, 0, 1), 4),
    Part.Circle(App.Vector(20, 19, 0), App.Vector(0, 0, 1), 4),
], False)
sketch7.addConstraint([
    Sketcher.Constraint("Equal", 0, 1),
    Sketcher.Constraint("Symmetric", 0, 3, 1, 3, -1, 1),
    Sketcher.Constraint("Diameter", 0, Q("8 mm")),
    Sketcher.Constraint("DistanceX", 0, 3, -1, 1, Q("20 mm")),
    Sketcher.Constraint("DistanceY", 0, 3, -1, 1, Q("19 mm")),
])
pocket6 = doc.addObject("PartDesign::Pocket", "Pocket005")
body.addObject(pocket6)
pocket6.Profile = sketch7
pocket6.Length = 3
doc.recompute()

fillet = doc.addObject("PartDesign::Fillet", "Fillet")
body.addObject(fillet)
fillet.Base = (pocket6, edges_at(pocket6, [
    (0, 0, -25),
    (24.536, 0, -23.536),
    (26, 0, 0),
    (24.536, 0, 23.536),
    (0, 0, 25),
    (-24.536, 0, 23.536),
    (-26, 0, 0),
    (-24.536, 0, -23.536),
]))
fillet.Radius = 1

# Sketch on XZ plane
sketch8 = doc.addObject("Sketcher::SketchObject", "Sketch007")
body.addObject(sketch8)
sketch8.AttachmentSupport = (doc.XZ_Plane, [""])
sketch8.MapMode = "FlatFace"
sketch8.addGeometry([
    Part.Circle(App.Vector(0, 5, 0), App.Vector(0, 0, 1), 9.8),
    Part.Circle(App.Vector(0, -15, 0), App.Vector(0, 0, 1), 2.5),
], False)
sketch8.addConstraint([
    Sketcher.Constraint("PointOnObject", 0, 3, -2),
    Sketcher.Constraint("PointOnObject", 1, 3, -2),
    Sketcher.Constraint("Diameter", 0, Q("19.5 mm")),
    Sketcher.Constraint("Diameter", 1, Q("5.1 mm")),
    Sketcher.Constraint("DistanceY", -1, 1, 0, 3, Q("5 mm")),
    Sketcher.Constraint("DistanceY", 1, 3, -1, 1, Q("15 mm")),
])
pocket7 = doc.addObject("PartDesign::Pocket", "Pocket006")
body.addObject(pocket7)
pocket7.Profile = sketch8
pocket7.Length = 10

doc.recompute()
